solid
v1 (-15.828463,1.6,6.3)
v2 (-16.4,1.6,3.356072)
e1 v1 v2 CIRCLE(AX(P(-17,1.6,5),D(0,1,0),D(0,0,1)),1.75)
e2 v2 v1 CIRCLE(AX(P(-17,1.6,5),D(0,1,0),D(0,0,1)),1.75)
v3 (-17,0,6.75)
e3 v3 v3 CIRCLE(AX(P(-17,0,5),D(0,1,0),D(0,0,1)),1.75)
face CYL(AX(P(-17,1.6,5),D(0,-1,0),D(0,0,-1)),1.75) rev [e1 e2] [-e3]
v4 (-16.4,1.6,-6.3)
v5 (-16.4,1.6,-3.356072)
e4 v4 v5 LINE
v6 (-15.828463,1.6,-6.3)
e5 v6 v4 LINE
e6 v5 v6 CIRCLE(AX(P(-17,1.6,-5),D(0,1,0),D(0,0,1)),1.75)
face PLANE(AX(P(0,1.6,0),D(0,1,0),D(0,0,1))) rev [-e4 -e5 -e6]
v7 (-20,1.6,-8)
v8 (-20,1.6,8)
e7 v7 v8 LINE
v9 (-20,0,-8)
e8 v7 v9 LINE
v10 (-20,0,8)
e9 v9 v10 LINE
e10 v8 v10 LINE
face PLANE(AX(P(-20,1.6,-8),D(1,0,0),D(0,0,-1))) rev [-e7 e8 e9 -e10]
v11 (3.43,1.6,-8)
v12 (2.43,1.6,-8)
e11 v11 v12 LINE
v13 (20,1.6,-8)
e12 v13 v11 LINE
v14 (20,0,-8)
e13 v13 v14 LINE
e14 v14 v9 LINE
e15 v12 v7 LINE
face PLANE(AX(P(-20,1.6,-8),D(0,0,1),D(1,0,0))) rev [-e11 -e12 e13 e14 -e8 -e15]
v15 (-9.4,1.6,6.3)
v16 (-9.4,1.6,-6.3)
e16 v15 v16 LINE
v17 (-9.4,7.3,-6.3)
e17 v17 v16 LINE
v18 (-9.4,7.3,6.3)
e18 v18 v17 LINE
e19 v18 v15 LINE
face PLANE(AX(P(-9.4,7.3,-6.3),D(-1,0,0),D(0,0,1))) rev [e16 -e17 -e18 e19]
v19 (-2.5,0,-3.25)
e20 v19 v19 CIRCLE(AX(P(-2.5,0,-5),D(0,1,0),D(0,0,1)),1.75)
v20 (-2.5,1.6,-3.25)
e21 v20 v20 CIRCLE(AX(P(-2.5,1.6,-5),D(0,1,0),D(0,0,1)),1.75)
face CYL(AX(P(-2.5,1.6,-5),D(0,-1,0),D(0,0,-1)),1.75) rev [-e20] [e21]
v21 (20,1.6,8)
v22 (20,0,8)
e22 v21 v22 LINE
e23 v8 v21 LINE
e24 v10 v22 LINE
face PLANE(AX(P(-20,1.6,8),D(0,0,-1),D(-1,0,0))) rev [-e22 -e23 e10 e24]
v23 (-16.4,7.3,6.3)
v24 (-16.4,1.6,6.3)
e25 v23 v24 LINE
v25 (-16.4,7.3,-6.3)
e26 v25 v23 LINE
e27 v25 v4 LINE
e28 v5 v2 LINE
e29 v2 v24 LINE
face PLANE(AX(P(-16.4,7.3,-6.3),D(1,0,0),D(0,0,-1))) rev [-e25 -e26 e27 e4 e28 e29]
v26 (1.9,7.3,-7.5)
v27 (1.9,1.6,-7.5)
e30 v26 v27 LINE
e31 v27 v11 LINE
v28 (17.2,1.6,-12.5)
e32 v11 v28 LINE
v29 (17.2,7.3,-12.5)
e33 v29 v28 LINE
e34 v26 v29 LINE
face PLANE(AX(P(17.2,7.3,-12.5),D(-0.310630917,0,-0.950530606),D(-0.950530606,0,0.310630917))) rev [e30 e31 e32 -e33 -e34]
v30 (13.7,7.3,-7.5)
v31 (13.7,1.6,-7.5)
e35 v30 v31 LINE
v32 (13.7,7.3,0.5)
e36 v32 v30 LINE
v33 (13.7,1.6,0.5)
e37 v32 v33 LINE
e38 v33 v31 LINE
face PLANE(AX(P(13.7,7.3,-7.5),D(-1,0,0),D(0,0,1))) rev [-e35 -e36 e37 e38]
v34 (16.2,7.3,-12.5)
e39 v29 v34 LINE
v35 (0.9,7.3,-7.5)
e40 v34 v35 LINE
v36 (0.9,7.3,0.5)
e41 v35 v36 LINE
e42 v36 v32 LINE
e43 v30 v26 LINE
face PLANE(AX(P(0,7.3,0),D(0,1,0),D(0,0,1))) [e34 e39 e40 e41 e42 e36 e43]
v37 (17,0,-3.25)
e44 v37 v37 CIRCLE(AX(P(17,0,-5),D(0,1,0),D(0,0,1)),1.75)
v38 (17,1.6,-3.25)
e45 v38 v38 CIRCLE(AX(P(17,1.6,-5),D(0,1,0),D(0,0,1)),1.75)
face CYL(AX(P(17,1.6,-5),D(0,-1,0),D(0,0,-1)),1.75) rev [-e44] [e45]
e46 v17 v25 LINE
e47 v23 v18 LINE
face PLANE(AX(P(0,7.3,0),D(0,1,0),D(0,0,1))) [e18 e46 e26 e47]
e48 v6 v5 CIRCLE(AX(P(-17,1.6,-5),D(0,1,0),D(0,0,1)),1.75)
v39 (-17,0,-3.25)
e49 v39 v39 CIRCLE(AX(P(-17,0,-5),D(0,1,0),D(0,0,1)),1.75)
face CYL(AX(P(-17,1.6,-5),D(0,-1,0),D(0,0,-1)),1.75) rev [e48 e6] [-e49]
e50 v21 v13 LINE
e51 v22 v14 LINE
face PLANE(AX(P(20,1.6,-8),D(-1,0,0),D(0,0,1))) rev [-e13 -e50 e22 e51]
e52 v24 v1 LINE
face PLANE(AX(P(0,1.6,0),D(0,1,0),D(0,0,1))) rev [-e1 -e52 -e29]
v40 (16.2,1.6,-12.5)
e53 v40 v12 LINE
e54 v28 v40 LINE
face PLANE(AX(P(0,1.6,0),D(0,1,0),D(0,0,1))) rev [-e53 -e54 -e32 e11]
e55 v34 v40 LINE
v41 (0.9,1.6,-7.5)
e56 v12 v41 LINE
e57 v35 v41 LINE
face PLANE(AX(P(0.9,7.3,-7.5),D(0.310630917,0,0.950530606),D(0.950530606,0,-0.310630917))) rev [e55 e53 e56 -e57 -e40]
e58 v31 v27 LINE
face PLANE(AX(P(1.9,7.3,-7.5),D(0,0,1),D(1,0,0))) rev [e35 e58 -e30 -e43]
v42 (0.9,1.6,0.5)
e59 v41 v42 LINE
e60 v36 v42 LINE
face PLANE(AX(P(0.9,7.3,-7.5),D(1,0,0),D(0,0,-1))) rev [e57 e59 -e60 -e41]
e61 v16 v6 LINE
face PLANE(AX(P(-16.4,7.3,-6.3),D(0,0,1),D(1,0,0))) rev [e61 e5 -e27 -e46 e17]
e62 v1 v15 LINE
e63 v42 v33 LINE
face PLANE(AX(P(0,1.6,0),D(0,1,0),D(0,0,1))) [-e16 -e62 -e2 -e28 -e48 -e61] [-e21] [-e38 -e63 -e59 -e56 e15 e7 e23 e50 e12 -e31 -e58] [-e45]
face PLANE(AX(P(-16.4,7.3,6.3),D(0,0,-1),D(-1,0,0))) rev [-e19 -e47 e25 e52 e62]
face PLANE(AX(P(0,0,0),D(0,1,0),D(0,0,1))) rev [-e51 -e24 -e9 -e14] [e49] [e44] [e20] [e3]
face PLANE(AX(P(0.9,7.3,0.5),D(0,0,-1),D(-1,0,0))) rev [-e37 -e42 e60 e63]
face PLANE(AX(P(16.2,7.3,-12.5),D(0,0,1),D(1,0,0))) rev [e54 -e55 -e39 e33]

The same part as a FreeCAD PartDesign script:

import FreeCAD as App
import Part
import Sketcher
from FreeCAD import Vector


def add_polygon(sketch, points):
    """Adds a closed chain of lines whose ends are joined by coincident constraints."""
    first, n = sketch.GeometryCount, len(points)
    for a, b in zip(points, points[1:] + points[:1]):
        sketch.addGeometry(Part.LineSegment(App.Vector(*a, 0), App.Vector(*b, 0)), False)
    for i in range(n):
        sketch.addConstraint(Sketcher.Constraint("Coincident", first + i, 2, first + (i + 1) % n, 1))

doc = App.newDocument("Part")
body = doc.addObject("PartDesign::Body", "Body")

# Sketch on XZ plane
sketch1 = doc.addObject("Sketcher::SketchObject", "Sketch")
body.addObject(sketch1)
sketch1.AttachmentSupport = (doc.XZ_Plane, [""])
sketch1.MapMode = "FlatFace"
add_polygon(sketch1, [(-20, -8), (-20, 8), (20, 8), (20, -8)])  # lines 0-3
sketch1.addConstraint(Sketcher.Constraint("Vertical", 0))
sketch1.addConstraint(Sketcher.Constraint("Horizontal", 1))
sketch1.addConstraint(Sketcher.Constraint("Vertical", 2))
sketch1.addConstraint(Sketcher.Constraint("Horizontal", 3))
sketch1.addConstraint(Sketcher.Constraint("Symmetric", 0, 2, 2, 2, -1, 1))
sketch1.addConstraint(Sketcher.Constraint("DistanceX", 1, 1, 1, 2, 40.0))
sketch1.addConstraint(Sketcher.Constraint("DistanceY", 0, 1, 0, 2, 16.0))
pad1 = doc.addObject("PartDesign::Pad", "Pad")
body.addObject(pad1)
pad1.Profile = sketch1
pad1.Length = 1.6
pad1.Reversed = True

# Sketch on XZ plane
sketch2 = doc.addObject("Sketcher::SketchObject", "Sketch001")
body.addObject(sketch2)
sketch2.AttachmentSupport = (doc.XZ_Plane, [""])
sketch2.MapMode = "FlatFace"
sketch2.addGeometry(Part.Circle(Vector(-17, -5, 0), Vector(0, 0, 1), 1.8), False)
sketch2.addGeometry(Part.Circle(Vector(-17, 5, 0), Vector(0, 0, 1), 1.8), False)
sketch2.addGeometry(Part.Circle(Vector(-2.5, -5, 0), Vector(0, 0, 1), 1.8), False)
sketch2.addGeometry(Part.Circle(Vector(17, -5, 0), Vector(0, 0, 1), 1.8), False)
sketch2.addConstraint(Sketcher.Constraint("Equal", 0, 1))
sketch2.addConstraint(Sketcher.Constraint("Equal", 1, 2))
sketch2.addConstraint(Sketcher.Constraint("Equal", 2, 3))
sketch2.addConstraint(Sketcher.Constraint("Symmetric", 1, 3, 3, 3, -1, 1))
sketch2.addConstraint(Sketcher.Constraint("Symmetric", 0, 3, 3, 3, -2))
sketch2.addConstraint(Sketcher.Constraint("Horizontal", 0, 3, 2, 3))
sketch2.addConstraint(Sketcher.Constraint("Diameter", 0, 3.5))
sketch2.addConstraint(Sketcher.Constraint("DistanceX", 0, 3, -1, 1, 17.0))
sketch2.addConstraint(Sketcher.Constraint("DistanceY", 0, 3, -1, 1, 5.0))
sketch2.addConstraint(Sketcher.Constraint("DistanceX", 2, 3, -1, 1, 2.5))
pocket1 = doc.addObject("PartDesign::Pocket", "Pocket")
body.addObject(pocket1)
pocket1.Profile = sketch2
pocket1.Length = 1.6

# Sketch on XZ plane
sketch3 = doc.addObject("Sketcher::SketchObject", "Sketch002")
body.addObject(sketch3)
sketch3.AttachmentSupport = (doc.XZ_Plane, [""])
sketch3.MapMode = "FlatFace"
sketch3.AttachmentOffset = App.Placement(Vector(0, 0, -1.6), App.Rotation())
add_polygon(sketch3, [(16.2, -12.5), (0.9, -7.5), (0.9, 0.5), (13.7, 0.5), (13.7, -7.5), (1.9, -7.5), (17.2, -12.5)])  # lines 0-6
sketch3.addConstraint(Sketcher.Constraint("Vertical", 1))
sketch3.addConstraint(Sketcher.Constraint("Horizontal", 2))
sketch3.addConstraint(Sketcher.Constraint("Vertical", 3))
sketch3.addConstraint(Sketcher.Constraint("Horizontal", 4))
sketch3.addConstraint(Sketcher.Constraint("Horizontal", 6))
sketch3.addConstraint(Sketcher.Constraint("Parallel", 0, 5))
sketch3.addConstraint(Sketcher.Constraint("Horizontal", 0, 2, 3, 2))
sketch3.addConstraint(Sketcher.Constraint("DistanceX", 6, 2, 6, 1, 1.0))
sketch3.addConstraint(Sketcher.Constraint("DistanceY", 1, 1, 1, 2, 8.0))
sketch3.addConstraint(Sketcher.Constraint("DistanceX", 2, 1, 2, 2, 12.8))
sketch3.addConstraint(Sketcher.Constraint("DistanceY", 5, 2, 3, 2, 5.0))
sketch3.addConstraint(Sketcher.Constraint("DistanceX", -1, 1, 0, 2, 0.9))
sketch3.addConstraint(Sketcher.Constraint("DistanceY", 0, 2, -1, 1, 7.5))
sketch3.addConstraint(Sketcher.Constraint("DistanceX", -1, 1, 5, 2, 17.2))
pad2 = doc.addObject("PartDesign::Pad", "Pad001")
body.addObject(pad2)
pad2.Profile = sketch3
pad2.Length = 5.7
pad2.Reversed = True

# Sketch on XZ plane
sketch4 = doc.addObject("Sketcher::SketchObject", "Sketch003")
body.addObject(sketch4)
sketch4.AttachmentSupport = (doc.XZ_Plane, [""])
sketch4.MapMode = "FlatFace"
sketch4.AttachmentOffset = App.Placement(Vector(0, 0, -1.6), App.Rotation())
add_polygon(sketch4, [(-16, -6), (-16, 6), (-9, 6), (-9, -6)])  # lines 0-3
sketch4.addConstraint(Sketcher.Constraint("Vertical", 0))
sketch4.addConstraint(Sketcher.Constraint("Horizontal", 1))
sketch4.addConstraint(Sketcher.Constraint("Vertical", 2))
sketch4.addConstraint(Sketcher.Constraint("Horizontal", 3))
sketch4.addConstraint(Sketcher.Constraint("DistanceX", 1, 1, 1, 2, 7.0))
sketch4.addConstraint(Sketcher.Constraint("DistanceY", 0, 1, 0, 2, 12.6))
sketch4.addConstraint(Sketcher.Constraint("DistanceX", 0, 2, -1, 1, 16.4))
sketch4.addConstraint(Sketcher.Constraint("DistanceY", -1, 1, 0, 2, 6.3))
pad3 = doc.addObject("PartDesign::Pad", "Pad002")
body.addObject(pad3)
pad3.Profile = sketch4
pad3.Length = 5.7
pad3.Reversed = True

doc.recompute()
